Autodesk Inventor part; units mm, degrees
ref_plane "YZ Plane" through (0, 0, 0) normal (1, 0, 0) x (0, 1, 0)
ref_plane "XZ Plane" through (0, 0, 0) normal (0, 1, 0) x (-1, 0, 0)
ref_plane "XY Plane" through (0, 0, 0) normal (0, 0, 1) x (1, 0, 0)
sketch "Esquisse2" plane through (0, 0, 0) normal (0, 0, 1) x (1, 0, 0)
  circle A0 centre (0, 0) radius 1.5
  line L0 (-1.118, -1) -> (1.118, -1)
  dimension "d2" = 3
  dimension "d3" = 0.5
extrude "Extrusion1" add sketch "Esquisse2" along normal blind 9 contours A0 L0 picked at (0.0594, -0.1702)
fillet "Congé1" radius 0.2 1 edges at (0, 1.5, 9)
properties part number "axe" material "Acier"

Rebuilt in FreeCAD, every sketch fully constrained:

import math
import FreeCAD as App
import Part
import Sketcher
Q = App.Units.Quantity


def edges_at(feature, points):
    """Names of the edges that pass closest to the given points."""
    edges = feature.Shape.Edges
    near = lambda p: min(range(len(edges)), key=lambda i: edges[i].distToShape(Part.Vertex(*p))[0])
    return sorted({f"Edge{near(p) + 1}" for p in points})

doc = App.newDocument("Part")
body = doc.addObject("PartDesign::Body", "Body")

sketch1 = body.newObject("Sketcher::SketchObject", "Sketch")
sketch1.AttachmentSupport = (doc.getObject("XY_Plane"), [""])
sketch1.MapMode = "FlatFace"
sketch1.addGeometry(Part.ArcOfCircle(Part.Circle(App.Vector(0, 0, 0), App.Vector(0, 0, 1), 1.5), math.radians(-42), math.radians(222)), False)
sketch1.addGeometry(Part.LineSegment(App.Vector(1.1, -1, 0), App.Vector(-1.1, -1, 0)), False)
sketch1.addConstraint(Sketcher.Constraint("Coincident", 0, 1, 1, 1))
sketch1.addConstraint(Sketcher.Constraint("Coincident", 1, 2, 0, 2))
sketch1.addConstraint(Sketcher.Constraint("Horizontal", 1))
sketch1.addConstraint(Sketcher.Constraint("Coincident", 0, 3, -1, 1))
sketch1.addConstraint(Sketcher.Constraint("Radius", 0, Q("1.5 mm")))
sketch1.addConstraint(Sketcher.Constraint("DistanceY", 0, 1, -1, 1, Q("1 mm")))
pad1 = body.newObject("PartDesign::Pad", "Pad")
pad1.Profile = sketch1
pad1.Length = 9
doc.recompute()

fillet = body.newObject("PartDesign::Fillet", "Fillet")
fillet.Base = (pad1, edges_at(pad1, [(0, 1.5, 9)]))
fillet.Radius = 0.2

doc.recompute()
